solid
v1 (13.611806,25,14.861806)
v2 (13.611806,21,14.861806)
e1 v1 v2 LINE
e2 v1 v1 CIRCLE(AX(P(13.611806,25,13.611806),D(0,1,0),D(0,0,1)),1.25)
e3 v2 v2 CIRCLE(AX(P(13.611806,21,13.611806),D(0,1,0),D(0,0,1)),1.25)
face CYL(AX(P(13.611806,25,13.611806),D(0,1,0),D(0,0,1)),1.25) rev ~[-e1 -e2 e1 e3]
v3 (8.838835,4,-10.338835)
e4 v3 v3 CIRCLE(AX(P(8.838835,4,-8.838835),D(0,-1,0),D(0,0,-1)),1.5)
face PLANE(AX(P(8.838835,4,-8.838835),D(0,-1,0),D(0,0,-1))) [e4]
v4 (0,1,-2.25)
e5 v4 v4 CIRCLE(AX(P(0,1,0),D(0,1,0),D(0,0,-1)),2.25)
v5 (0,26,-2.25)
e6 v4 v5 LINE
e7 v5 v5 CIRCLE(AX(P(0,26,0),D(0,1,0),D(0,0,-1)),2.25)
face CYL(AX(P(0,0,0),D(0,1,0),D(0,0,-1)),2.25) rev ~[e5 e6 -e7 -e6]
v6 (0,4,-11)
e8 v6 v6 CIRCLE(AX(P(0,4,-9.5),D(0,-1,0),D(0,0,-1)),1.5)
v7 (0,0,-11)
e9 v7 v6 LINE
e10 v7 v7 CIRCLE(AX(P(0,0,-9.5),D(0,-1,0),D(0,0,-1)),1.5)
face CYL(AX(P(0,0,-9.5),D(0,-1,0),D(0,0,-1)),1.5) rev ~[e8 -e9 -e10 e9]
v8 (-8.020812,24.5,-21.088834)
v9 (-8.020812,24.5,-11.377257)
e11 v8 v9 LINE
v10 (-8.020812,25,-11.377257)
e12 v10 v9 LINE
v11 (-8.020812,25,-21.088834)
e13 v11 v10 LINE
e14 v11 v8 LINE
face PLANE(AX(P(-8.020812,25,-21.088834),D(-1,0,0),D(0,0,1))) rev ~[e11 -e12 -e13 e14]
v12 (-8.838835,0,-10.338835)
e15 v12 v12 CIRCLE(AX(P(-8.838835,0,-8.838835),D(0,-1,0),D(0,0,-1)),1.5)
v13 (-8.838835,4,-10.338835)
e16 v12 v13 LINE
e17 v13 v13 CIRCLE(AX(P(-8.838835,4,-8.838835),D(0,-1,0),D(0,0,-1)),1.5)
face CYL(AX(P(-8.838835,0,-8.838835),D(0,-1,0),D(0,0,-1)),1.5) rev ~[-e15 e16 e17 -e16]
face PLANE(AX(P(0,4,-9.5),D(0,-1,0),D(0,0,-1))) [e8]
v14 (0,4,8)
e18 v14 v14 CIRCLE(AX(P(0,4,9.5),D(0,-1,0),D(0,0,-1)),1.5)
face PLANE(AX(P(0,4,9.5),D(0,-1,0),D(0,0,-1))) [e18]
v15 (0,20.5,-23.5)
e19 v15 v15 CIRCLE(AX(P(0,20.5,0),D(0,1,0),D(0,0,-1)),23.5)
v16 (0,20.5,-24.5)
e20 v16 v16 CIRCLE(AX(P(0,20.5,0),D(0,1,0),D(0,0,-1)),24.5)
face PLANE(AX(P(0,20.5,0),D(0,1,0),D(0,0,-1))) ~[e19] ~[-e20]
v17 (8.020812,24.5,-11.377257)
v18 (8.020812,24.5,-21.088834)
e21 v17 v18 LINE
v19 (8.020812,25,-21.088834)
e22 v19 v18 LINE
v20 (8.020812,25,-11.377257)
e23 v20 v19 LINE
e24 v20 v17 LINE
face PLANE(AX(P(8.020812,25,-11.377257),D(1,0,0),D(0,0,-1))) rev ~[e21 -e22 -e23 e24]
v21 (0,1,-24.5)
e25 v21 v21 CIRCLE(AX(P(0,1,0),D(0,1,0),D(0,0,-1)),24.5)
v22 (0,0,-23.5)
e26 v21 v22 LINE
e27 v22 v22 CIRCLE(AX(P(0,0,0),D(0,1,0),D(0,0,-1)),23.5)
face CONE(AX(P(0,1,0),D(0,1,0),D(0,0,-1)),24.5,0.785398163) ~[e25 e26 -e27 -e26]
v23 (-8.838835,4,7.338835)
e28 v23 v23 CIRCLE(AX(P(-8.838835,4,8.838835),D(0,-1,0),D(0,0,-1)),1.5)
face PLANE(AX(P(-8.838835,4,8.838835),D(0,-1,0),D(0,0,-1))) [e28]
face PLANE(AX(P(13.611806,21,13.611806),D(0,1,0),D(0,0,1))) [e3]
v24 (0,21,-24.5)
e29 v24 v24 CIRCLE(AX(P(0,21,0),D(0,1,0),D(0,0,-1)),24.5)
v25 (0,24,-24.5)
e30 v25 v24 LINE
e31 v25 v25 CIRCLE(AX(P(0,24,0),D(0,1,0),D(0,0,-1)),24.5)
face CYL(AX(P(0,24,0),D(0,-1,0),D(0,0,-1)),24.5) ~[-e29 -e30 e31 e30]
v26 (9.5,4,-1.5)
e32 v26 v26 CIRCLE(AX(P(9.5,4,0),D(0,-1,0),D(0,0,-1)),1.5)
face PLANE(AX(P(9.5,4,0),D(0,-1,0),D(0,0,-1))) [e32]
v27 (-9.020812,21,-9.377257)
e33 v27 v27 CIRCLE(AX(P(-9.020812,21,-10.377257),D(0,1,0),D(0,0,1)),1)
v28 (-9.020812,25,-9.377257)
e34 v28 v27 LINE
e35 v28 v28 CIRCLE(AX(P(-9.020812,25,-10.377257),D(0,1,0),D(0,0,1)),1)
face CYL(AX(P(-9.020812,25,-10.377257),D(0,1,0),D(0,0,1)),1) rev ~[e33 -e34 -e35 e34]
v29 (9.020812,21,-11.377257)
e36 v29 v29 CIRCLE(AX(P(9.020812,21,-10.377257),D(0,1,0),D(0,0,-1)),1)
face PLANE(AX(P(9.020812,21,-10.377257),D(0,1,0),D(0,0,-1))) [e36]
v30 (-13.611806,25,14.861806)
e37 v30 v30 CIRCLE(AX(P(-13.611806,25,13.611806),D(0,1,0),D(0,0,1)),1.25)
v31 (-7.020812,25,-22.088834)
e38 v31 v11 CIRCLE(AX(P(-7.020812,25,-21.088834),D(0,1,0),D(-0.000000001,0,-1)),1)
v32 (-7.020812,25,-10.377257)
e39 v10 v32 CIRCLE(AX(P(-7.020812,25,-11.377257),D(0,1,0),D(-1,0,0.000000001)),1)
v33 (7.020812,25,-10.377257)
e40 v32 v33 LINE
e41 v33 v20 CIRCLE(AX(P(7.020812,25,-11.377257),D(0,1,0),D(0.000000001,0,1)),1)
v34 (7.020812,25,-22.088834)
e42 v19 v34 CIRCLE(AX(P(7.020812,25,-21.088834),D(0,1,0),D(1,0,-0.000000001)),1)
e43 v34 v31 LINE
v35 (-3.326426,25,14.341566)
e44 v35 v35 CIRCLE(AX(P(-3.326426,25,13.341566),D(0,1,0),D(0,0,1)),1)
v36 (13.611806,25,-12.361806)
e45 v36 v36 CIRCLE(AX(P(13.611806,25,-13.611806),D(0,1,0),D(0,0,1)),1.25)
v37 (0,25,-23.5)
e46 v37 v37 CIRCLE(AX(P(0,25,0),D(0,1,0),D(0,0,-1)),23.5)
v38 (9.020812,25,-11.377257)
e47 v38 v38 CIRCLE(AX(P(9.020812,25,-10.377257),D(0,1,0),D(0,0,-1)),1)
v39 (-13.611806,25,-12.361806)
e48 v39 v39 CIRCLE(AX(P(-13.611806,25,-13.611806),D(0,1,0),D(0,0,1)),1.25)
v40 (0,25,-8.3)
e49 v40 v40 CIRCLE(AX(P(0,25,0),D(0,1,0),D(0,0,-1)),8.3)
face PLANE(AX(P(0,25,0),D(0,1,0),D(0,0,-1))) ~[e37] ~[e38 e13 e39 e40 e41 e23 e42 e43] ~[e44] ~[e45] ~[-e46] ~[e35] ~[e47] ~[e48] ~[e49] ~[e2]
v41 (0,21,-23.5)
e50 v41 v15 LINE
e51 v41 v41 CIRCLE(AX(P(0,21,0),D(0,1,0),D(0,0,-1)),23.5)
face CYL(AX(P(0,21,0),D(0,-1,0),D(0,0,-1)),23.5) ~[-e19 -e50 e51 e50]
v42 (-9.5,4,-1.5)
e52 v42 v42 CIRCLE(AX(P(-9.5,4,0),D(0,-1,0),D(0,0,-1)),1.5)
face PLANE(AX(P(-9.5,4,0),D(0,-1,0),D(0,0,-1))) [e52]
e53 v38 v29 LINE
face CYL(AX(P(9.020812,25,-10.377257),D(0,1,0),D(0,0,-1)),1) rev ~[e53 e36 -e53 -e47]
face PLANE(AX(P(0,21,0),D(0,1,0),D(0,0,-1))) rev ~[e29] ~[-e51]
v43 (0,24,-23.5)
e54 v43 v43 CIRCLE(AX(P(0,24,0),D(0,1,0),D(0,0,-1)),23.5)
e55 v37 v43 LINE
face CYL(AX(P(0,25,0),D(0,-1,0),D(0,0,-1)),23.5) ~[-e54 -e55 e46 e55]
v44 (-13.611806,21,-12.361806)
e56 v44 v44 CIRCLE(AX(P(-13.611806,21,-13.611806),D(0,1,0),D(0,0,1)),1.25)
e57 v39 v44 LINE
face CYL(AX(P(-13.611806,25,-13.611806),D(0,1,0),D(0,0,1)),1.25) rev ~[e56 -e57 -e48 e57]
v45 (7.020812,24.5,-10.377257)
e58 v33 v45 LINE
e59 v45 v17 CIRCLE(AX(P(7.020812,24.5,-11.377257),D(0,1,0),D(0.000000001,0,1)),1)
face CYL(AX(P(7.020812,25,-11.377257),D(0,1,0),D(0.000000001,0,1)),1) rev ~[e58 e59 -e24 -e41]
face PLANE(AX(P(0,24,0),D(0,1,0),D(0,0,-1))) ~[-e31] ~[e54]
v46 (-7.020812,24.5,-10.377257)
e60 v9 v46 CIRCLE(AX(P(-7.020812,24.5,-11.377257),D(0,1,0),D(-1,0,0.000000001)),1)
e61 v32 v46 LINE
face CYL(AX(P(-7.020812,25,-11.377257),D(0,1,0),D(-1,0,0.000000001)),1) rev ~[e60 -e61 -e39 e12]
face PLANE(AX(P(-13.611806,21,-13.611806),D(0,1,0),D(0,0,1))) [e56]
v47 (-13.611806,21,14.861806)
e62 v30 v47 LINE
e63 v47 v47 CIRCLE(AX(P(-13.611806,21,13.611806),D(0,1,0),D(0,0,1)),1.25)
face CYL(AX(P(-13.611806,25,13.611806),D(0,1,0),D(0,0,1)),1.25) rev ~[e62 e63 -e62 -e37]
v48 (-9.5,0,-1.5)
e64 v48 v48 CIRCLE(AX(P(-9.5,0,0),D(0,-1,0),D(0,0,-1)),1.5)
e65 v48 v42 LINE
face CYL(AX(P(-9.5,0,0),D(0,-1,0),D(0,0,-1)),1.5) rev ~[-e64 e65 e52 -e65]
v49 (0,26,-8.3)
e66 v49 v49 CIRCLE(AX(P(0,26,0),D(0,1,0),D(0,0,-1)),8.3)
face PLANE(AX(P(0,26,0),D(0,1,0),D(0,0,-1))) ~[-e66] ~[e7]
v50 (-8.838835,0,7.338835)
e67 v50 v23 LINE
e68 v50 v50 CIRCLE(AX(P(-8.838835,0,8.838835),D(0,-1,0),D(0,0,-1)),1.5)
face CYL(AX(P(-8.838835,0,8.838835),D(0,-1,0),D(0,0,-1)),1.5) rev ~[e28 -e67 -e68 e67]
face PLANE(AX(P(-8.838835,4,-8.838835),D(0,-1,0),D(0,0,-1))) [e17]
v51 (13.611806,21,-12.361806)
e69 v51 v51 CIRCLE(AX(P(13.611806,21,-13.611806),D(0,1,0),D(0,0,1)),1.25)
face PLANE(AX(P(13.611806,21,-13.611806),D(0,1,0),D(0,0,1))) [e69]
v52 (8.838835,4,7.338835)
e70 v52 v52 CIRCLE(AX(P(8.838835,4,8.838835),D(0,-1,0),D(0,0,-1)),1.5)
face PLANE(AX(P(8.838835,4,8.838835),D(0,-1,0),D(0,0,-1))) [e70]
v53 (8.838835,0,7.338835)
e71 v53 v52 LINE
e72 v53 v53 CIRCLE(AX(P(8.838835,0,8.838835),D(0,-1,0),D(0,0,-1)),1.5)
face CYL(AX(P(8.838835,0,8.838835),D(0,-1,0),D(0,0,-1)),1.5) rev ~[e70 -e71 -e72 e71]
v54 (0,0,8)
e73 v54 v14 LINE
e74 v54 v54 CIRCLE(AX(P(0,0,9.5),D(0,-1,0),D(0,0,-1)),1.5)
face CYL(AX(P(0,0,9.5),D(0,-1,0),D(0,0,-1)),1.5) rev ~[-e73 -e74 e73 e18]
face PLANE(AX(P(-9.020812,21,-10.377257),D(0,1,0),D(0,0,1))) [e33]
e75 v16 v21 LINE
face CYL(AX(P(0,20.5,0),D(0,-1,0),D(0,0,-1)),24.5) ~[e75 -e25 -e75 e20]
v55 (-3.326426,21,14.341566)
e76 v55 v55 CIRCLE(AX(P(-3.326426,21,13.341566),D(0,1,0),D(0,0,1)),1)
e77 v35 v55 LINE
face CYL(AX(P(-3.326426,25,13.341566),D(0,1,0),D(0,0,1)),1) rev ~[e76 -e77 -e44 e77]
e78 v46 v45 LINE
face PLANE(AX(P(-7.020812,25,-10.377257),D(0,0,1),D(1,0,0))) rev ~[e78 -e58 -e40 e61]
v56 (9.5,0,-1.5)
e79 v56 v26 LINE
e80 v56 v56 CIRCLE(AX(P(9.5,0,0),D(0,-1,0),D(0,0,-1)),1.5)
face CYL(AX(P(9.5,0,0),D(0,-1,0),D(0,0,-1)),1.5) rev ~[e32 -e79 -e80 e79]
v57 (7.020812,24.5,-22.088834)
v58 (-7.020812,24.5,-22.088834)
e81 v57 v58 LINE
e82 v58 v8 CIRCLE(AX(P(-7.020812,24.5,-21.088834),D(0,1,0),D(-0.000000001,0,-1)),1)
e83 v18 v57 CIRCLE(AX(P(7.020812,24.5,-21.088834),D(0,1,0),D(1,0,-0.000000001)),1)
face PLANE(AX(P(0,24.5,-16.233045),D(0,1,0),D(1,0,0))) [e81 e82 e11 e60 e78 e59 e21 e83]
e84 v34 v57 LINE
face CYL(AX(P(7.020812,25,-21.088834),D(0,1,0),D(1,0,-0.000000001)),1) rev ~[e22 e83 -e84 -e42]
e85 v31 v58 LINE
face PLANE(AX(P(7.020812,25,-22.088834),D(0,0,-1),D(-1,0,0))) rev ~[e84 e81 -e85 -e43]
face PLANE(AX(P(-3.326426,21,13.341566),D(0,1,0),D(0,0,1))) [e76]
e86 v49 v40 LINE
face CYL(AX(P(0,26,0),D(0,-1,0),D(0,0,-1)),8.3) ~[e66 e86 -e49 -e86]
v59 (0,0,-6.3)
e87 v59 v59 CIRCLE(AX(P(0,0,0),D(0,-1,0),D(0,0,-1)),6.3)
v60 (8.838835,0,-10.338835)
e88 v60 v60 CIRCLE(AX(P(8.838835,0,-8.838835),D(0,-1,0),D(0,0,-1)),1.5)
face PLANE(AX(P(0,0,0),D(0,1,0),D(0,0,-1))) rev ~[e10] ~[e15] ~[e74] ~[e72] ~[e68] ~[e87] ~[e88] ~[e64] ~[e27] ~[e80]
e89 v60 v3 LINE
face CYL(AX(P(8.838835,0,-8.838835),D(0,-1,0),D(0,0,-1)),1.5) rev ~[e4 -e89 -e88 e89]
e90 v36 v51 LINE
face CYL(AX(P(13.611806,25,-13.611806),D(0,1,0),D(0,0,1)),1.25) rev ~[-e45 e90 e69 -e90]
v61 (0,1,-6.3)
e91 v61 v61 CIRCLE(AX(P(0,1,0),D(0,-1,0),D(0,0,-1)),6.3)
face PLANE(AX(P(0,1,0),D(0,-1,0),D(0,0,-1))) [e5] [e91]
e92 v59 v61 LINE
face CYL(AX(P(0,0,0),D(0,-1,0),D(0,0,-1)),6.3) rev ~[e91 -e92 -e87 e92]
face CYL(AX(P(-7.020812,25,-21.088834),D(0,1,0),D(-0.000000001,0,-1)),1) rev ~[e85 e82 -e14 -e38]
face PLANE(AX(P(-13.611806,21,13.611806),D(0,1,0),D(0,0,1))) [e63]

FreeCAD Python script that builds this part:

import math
import FreeCAD as App
import Part
import Sketcher

V = App.Vector
Q = App.Units.Quantity


def edges_at(feature, points):
    """Names of the edges that pass closest to the given points."""
    edges = feature.Shape.Edges
    near = lambda p: min(range(len(edges)), key=lambda i: edges[i].distToShape(Part.Vertex(*p))[0])
    return sorted({f"Edge{near(p) + 1}" for p in points})


def add_polygon(sketch, points):
    """Adds a closed chain of lines whose ends are joined by coincident constraints."""
    first, n = sketch.GeometryCount, len(points)
    for a, b in zip(points, points[1:] + points[:1]):
        sketch.addGeometry(Part.LineSegment(App.Vector(*a, 0), App.Vector(*b, 0)), False)
    for i in range(n):
        sketch.addConstraint(Sketcher.Constraint("Coincident", first + i, 2, first + (i + 1) % n, 1))

doc = App.newDocument("Part")
body = doc.addObject("PartDesign::Body", "Body")

sketch1 = body.newObject("Sketcher::SketchObject", "Sketch")
sketch1.AttachmentSupport = (doc.getObject("XY_Plane"), [""])
sketch1.MapMode = "FlatFace"
add_polygon(sketch1, [(2.25, 26), (2.25, 0), (24.5, 0), (24.5, 20.5), (23.5, 20.5), (23.5, 21), (24.5, 21), (24.5, 24), (23.5, 24), (23.5, 25), (8.3, 25), (8.3, 26)])
sketch1.addConstraint([
    Sketcher.Constraint("Vertical", 0),
    Sketcher.Constraint("Horizontal", 1),
    Sketcher.Constraint("Vertical", 2),
    Sketcher.Constraint("Horizontal", 3),
    Sketcher.Constraint("Vertical", 4),
    Sketcher.Constraint("Horizontal", 5),
    Sketcher.Constraint("Vertical", 6),
    Sketcher.Constraint("Horizontal", 7),
    Sketcher.Constraint("Vertical", 8),
    Sketcher.Constraint("Horizontal", 9),
    Sketcher.Constraint("Vertical", 10),
    Sketcher.Constraint("Horizontal", 11),
    Sketcher.Constraint("PointOnObject", 0, 2, -1),
    Sketcher.Constraint("Vertical", 2, 2, 5, 2),
    Sketcher.Constraint("Vertical", 4, 2, 7, 2),
    Sketcher.Constraint("Equal", 7, 8),
    Sketcher.Constraint("Equal", 8, 10),
    Sketcher.Constraint("DistanceX", 3, 2, 3, 1, Q("1 mm")),
    Sketcher.Constraint("DistanceY", 0, 2, 0, 1, Q("26 mm")),
    Sketcher.Constraint("DistanceY", 6, 1, 6, 2, Q("3 mm")),
    Sketcher.Constraint("DistanceX", 9, 2, 9, 1, Q("15.2 mm")),
    Sketcher.Constraint("DistanceY", 2, 1, 2, 2, Q("20.5 mm")),
    Sketcher.Constraint("DistanceX", 1, 1, 1, 2, Q("22.25 mm")),
    Sketcher.Constraint("DistanceX", -1, 1, 1, 2, Q("24.5 mm")),
])
revolution = body.newObject("PartDesign::Revolution", "Revolution")
revolution.Profile = sketch1
revolution.ReferenceAxis = (sketch1, ["V_Axis"])
revolution.Angle = 360
doc.recompute()

chamfer = body.newObject("PartDesign::Chamfer", "Chamfer")
chamfer.Base = (revolution, edges_at(revolution, [(0, 0, 24.5)]))
chamfer.Size = 1

sketch2 = body.newObject("Sketcher::SketchObject", "Sketch001")
sketch2.AttachmentSupport = (doc.getObject("XZ_Plane"), [""])
sketch2.MapMode = "FlatFace"
sketch2.AttachmentOffset = App.Placement(V(0, 0, -25), App.Rotation())
sketch2.addGeometry([
    Part.Circle(V(13.611806, -13.611806, 0), V(0, 0, 1), 1.25),
    Part.Circle(V(13.611806, 13.611806, 0), V(0, 0, 1), 1.25),
    Part.Circle(V(-13.611806, 13.611806, 0), V(0, 0, 1), 1.25),
    Part.Circle(V(-13.611806, -13.611806, 0), V(0, 0, 1), 1.25),
    Part.Circle(V(-9.020812, -10.377257, 0), V(0, 0, 1), 1),
    Part.Circle(V(-3.326426, 13.341566, 0), V(0, 0, 1), 1),
    Part.Circle(V(9.020812, -10.377257, 0), V(0, 0, 1), 1),
], False)
sketch2.addConstraint([
    Sketcher.Constraint("Equal", 0, 1),
    Sketcher.Constraint("Equal", 1, 2),
    Sketcher.Constraint("Equal", 2, 3),
    Sketcher.Constraint("Equal", 4, 5),
    Sketcher.Constraint("Equal", 5, 6),
    Sketcher.Constraint("Symmetric", 0, 3, 2, 3, -1, 1),
    Sketcher.Constraint("Symmetric", 1, 3, 3, 3, -1, 1),
    Sketcher.Constraint("Symmetric", 1, 3, 2, 3, -2),
    Sketcher.Constraint("Symmetric", 4, 3, 6, 3, -2),
    Sketcher.Constraint("Diameter", 4, Q("2 mm")),
    Sketcher.Constraint("Diameter", 0, Q("2.5 mm")),
    Sketcher.Constraint("DistanceX", 4, 3, -1, 1, Q("9.020812 mm")),
    Sketcher.Constraint("DistanceY", 0, 3, 1, 3, Q("27.223611 mm")),
    Sketcher.Constraint("DistanceX", 2, 3, 1, 3, Q("27.223611 mm")),
    Sketcher.Constraint("DistanceY", 3, 3, 4, 3, Q("3.234549 mm")),
    Sketcher.Constraint("DistanceX", 2, 3, 5, 3, Q("10.285379 mm")),
    Sketcher.Constraint("DistanceY", 5, 3, 2, 3, Q("0.270239 mm")),
])
pocket1 = body.newObject("PartDesign::Pocket", "Pocket")
pocket1.Profile = sketch2
pocket1.Length = 4
pocket1.Reversed = True

sketch3 = body.newObject("Sketcher::SketchObject", "Sketch002")
sketch3.AttachmentSupport = (doc.getObject("XZ_Plane"), [""])
sketch3.MapMode = "FlatFace"
sketch3.addGeometry([
    Part.Circle(V(0, 9.5, 0), V(0, 0, 1), 1.5),
    Part.Circle(V(8.838835, 8.838835, 0), V(0, 0, 1), 1.5),
    Part.Circle(V(9.5, 0, 0), V(0, 0, 1), 1.5),
    Part.Circle(V(8.838835, -8.838835, 0), V(0, 0, 1), 1.5),
    Part.Circle(V(0, -9.5, 0), V(0, 0, 1), 1.5),
    Part.Circle(V(-8.838835, -8.838835, 0), V(0, 0, 1), 1.5),
    Part.Circle(V(-9.5, 0, 0), V(0, 0, 1), 1.5),
    Part.Circle(V(-8.838835, 8.838835, 0), V(0, 0, 1), 1.5),
], False)
sketch3.addConstraint([
    Sketcher.Constraint("Equal", 0, 1),
    Sketcher.Constraint("Equal", 1, 2),
    Sketcher.Constraint("Equal", 2, 3),
    Sketcher.Constraint("Equal", 3, 4),
    Sketcher.Constraint("Equal", 4, 5),
    Sketcher.Constraint("Equal", 5, 6),
    Sketcher.Constraint("Equal", 6, 7),
    Sketcher.Constraint("Symmetric", 0, 3, 4, 3, -1, 1),
    Sketcher.Constraint("Symmetric", 1, 3, 5, 3, -1, 1),
    Sketcher.Constraint("Symmetric", 2, 3, 6, 3, -1, 1),
    Sketcher.Constraint("Symmetric", 3, 3, 7, 3, -1, 1),
    Sketcher.Constraint("Symmetric", 3, 3, 5, 3, -2),
    Sketcher.Constraint("PointOnObject", 0, 3, -2),
    Sketcher.Constraint("PointOnObject", 2, 3, -1),
    Sketcher.Constraint("Diameter", 0, Q("3 mm")),
    Sketcher.Constraint("DistanceY", 4, 3, 0, 3, Q("19 mm")),
    Sketcher.Constraint("DistanceX", 6, 3, 2, 3, Q("19 mm")),
    Sketcher.Constraint("DistanceY", 3, 3, 1, 3, Q("17.67767 mm")),
    Sketcher.Constraint("DistanceX", 5, 3, 3, 3, Q("17.67767 mm")),
])
pocket2 = body.newObject("PartDesign::Pocket", "Pocket001")
pocket2.Profile = sketch3
pocket2.Length = 4

sketch4 = body.newObject("Sketcher::SketchObject", "Sketch003")
sketch4.AttachmentSupport = (doc.getObject("XZ_Plane"), [""])
sketch4.MapMode = "FlatFace"
sketch4.addGeometry(Part.Circle(V(0, 0, 0), V(0, 0, 1), 6.3), False)
sketch4.addConstraint([
    Sketcher.Constraint("Coincident", 0, 3, -1, 1),
    Sketcher.Constraint("Diameter", 0, Q("12.6 mm")),
])
pocket3 = body.newObject("PartDesign::Pocket", "Pocket002")
pocket3.Profile = sketch4
pocket3.Length = 1

sketch5 = body.newObject("Sketcher::SketchObject", "Sketch004")
sketch5.AttachmentSupport = (doc.getObject("XZ_Plane"), [""])
sketch5.MapMode = "FlatFace"
sketch5.AttachmentOffset = App.Placement(V(0, 0, -25), App.Rotation())
sketch5.addGeometry([
    Part.LineSegment(V(-7.020812, -10.377257, 0), V(7.020812, -10.377257, 0)),
    Part.ArcOfCircle(Part.Circle(V(7.020812, -11.377257, 0), V(0, 0, 1), 1), math.radians(0), math.radians(90)),
    Part.LineSegment(V(8.020812, -11.377257, 0), V(8.020812, -21.088834, 0)),
    Part.ArcOfCircle(Part.Circle(V(7.020812, -21.088834, 0), V(0, 0, 1), 1), math.radians(-90), math.radians(0)),
    Part.LineSegment(V(7.020812, -22.088834, 0), V(-7.020812, -22.088834, 0)),
    Part.ArcOfCircle(Part.Circle(V(-7.020812, -21.088834, 0), V(0, 0, 1), 1), math.radians(-180), math.radians(-90)),
    Part.LineSegment(V(-8.020812, -21.088834, 0), V(-8.020812, -11.377257, 0)),
    Part.ArcOfCircle(Part.Circle(V(-7.020812, -11.377257, 0), V(0, 0, 1), 1), math.radians(90), math.radians(180)),
], False)
sketch5.addConstraint([
    Sketcher.Constraint("Tangent", 0, 2, 1, 2),
    Sketcher.Constraint("Tangent", 1, 1, 2, 1),
    Sketcher.Constraint("Tangent", 2, 2, 3, 2),
    Sketcher.Constraint("Tangent", 3, 1, 4, 1),
    Sketcher.Constraint("Tangent", 4, 2, 5, 2),
    Sketcher.Constraint("Tangent", 5, 1, 6, 1),
    Sketcher.Constraint("Tangent", 6, 2, 7, 2),
    Sketcher.Constraint("Tangent", 7, 1, 0, 1),
    Sketcher.Constraint("Horizontal", 0),
    Sketcher.Constraint("Vertical", 2),
    Sketcher.Constraint("Horizontal", 4),
    Sketcher.Constraint("Vertical", 6),
    Sketcher.Constraint("Equal", 1, 3),
    Sketcher.Constraint("Equal", 3, 5),
    Sketcher.Constraint("Equal", 5, 7),
    Sketcher.Constraint("Radius", 1, Q("1 mm")),
    Sketcher.Constraint("DistanceX", 0, 1, 0, 2, Q("14.041623 mm")),
    Sketcher.Constraint("DistanceY", 2, 2, 2, 1, Q("9.711577 mm")),
    Sketcher.Constraint("DistanceX", -1, 1, 1, 3, Q("7.020812 mm")),
    Sketcher.Constraint("DistanceY", 1, 3, -1, 1, Q("11.377257 mm")),
])
pocket4 = body.newObject("PartDesign::Pocket", "Pocket003")
pocket4.Profile = sketch5
pocket4.Length = 0.5
pocket4.Reversed = True

doc.recompute()
